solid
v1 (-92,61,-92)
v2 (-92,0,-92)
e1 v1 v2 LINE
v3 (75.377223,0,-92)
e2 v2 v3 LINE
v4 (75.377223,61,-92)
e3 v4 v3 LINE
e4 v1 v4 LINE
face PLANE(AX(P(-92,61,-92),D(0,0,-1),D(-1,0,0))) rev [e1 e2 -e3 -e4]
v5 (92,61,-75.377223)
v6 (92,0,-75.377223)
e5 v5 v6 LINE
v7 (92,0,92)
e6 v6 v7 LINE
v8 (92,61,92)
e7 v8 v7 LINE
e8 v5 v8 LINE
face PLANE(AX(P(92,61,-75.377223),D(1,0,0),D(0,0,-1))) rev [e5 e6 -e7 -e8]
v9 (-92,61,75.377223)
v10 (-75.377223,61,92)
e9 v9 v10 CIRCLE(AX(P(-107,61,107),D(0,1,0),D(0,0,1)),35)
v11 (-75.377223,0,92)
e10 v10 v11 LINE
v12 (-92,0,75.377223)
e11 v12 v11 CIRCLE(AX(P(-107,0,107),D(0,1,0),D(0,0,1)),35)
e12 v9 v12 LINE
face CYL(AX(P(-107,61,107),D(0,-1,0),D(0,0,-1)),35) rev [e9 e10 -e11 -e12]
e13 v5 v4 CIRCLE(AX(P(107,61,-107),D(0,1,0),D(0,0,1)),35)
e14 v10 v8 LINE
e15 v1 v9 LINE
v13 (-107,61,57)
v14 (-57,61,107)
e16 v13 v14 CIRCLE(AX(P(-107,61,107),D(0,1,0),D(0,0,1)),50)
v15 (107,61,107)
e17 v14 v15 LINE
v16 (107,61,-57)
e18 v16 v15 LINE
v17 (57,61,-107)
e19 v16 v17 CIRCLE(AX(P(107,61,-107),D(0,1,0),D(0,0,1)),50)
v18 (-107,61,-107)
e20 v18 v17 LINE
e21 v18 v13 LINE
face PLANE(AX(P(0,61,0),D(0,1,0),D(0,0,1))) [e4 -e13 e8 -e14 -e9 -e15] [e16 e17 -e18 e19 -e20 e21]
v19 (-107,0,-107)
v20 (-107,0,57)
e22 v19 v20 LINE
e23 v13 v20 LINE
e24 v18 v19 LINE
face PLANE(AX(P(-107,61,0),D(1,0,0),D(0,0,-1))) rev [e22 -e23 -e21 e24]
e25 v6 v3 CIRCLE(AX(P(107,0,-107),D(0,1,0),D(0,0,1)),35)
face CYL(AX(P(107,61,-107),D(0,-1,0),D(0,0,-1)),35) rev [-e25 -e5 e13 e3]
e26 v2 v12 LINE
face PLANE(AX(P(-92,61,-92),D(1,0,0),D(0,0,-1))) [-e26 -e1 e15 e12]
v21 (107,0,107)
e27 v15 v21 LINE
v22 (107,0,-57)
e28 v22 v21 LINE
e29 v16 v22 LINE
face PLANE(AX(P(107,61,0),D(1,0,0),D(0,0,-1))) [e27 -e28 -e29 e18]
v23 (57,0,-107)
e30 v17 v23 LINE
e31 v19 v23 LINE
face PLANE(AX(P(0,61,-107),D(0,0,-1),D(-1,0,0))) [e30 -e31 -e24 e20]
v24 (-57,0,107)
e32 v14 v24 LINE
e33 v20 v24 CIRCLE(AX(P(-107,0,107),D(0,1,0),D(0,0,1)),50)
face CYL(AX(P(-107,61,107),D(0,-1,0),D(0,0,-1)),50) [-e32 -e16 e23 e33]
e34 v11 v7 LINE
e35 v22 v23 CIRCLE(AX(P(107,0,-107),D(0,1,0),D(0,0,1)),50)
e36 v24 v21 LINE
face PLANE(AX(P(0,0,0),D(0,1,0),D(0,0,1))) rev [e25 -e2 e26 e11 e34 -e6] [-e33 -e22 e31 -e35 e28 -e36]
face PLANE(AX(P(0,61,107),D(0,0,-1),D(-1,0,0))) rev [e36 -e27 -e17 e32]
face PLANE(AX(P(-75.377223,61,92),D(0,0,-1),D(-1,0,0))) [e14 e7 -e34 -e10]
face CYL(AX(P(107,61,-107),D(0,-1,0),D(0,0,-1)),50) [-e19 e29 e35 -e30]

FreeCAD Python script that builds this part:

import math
import FreeCAD as App
import Part
import Sketcher
from FreeCAD import Vector

doc = App.newDocument("Part")
body = doc.addObject("PartDesign::Body", "Body")

sketch1 = body.newObject("Sketcher::SketchObject", "Sketch")
sketch1.AttachmentSupport = (doc.getObject("XZ_Plane"), [""])
sketch1.MapMode = "FlatFace"
sketch1.addGeometry([
    Part.LineSegment(Vector(57, -107, 0), Vector(-107, -107, 0)),
    Part.LineSegment(Vector(-107, -107, 0), Vector(-107, 57, 0)),
    Part.ArcOfCircle(Part.Circle(Vector(-107, 107, 0), Vector(0, 0, 1), 50), math.radians(0), math.radians(270)),
    Part.LineSegment(Vector(-57, 107, 0), Vector(107, 107, 0)),
    Part.LineSegment(Vector(107, 107, 0), Vector(107, -57, 0)),
    Part.ArcOfCircle(Part.Circle(Vector(107, -107, 0), Vector(0, 0, 1), 50), math.radians(180), math.radians(450)),
    Part.LineSegment(Vector(-92, -92, 0), Vector(75.377223, -92, 0)),
    Part.ArcOfCircle(Part.Circle(Vector(107, -107, 0), Vector(0, 0, 1), 35), math.radians(154.623066), math.radians(475.376934)),
    Part.LineSegment(Vector(92, -75.377223, 0), Vector(92, 92, 0)),
    Part.LineSegment(Vector(92, 92, 0), Vector(-75.377223, 92, 0)),
    Part.ArcOfCircle(Part.Circle(Vector(-107, 107, 0), Vector(0, 0, 1), 35), math.radians(-25.376934), math.radians(295.376934)),
    Part.LineSegment(Vector(-92, 75.377223, 0), Vector(-92, -92, 0)),
], False)
sketch1.addConstraint([
    Sketcher.Constraint("Coincident", 0, 2, 1, 1),
    Sketcher.Constraint("Coincident", 1, 2, 2, 2),
    Sketcher.Constraint("Coincident", 2, 1, 3, 1),
    Sketcher.Constraint("Coincident", 3, 2, 4, 1),
    Sketcher.Constraint("Coincident", 4, 2, 5, 2),
    Sketcher.Constraint("Coincident", 5, 1, 0, 1),
    Sketcher.Constraint("Coincident", 6, 2, 7, 1),
    Sketcher.Constraint("Coincident", 7, 2, 8, 1),
    Sketcher.Constraint("Coincident", 8, 2, 9, 1),
    Sketcher.Constraint("Coincident", 9, 2, 10, 1),
    Sketcher.Constraint("Coincident", 10, 2, 11, 1),
    Sketcher.Constraint("Coincident", 11, 2, 6, 1),
    Sketcher.Constraint("Horizontal", 0),
    Sketcher.Constraint("Vertical", 1),
    Sketcher.Constraint("Horizontal", 3),
    Sketcher.Constraint("Vertical", 4),
    Sketcher.Constraint("Horizontal", 6),
    Sketcher.Constraint("Vertical", 8),
    Sketcher.Constraint("Horizontal", 9),
    Sketcher.Constraint("Vertical", 11),
    Sketcher.Constraint("Coincident", 7, 3, 5, 3),
    Sketcher.Constraint("Coincident", 10, 3, 2, 3),
    Sketcher.Constraint("Equal", 2, 5),
    Sketcher.Constraint("Equal", 7, 10),
    Sketcher.Constraint("Symmetric", 2, 3, 5, 3, -1, 1),
    Sketcher.Constraint("Symmetric", 0, 2, 3, 2, -1, 1),
    Sketcher.Constraint("Symmetric", 8, 2, 11, 2, -1, 1),
    Sketcher.Constraint("Horizontal", 7, 3, 0, 2),
    Sketcher.Constraint("Vertical", 10, 3, 0, 2),
    Sketcher.Constraint("Equal", 3, 1),
    Sketcher.Constraint("Equal", 9, 8),
    Sketcher.Constraint("Radius", 2, 50.0),
    Sketcher.Constraint("Radius", 7, 35.0),
    Sketcher.Constraint("DistanceX", 0, 2, 0, 1, 164.0),
    Sketcher.Constraint("DistanceY", 6, 2, -1, 1, 92.0),
])
pad1 = body.newObject("PartDesign::Pad", "Pad")
pad1.Profile = sketch1
pad1.Length = 61
pad1.Reversed = True

doc.recompute()
